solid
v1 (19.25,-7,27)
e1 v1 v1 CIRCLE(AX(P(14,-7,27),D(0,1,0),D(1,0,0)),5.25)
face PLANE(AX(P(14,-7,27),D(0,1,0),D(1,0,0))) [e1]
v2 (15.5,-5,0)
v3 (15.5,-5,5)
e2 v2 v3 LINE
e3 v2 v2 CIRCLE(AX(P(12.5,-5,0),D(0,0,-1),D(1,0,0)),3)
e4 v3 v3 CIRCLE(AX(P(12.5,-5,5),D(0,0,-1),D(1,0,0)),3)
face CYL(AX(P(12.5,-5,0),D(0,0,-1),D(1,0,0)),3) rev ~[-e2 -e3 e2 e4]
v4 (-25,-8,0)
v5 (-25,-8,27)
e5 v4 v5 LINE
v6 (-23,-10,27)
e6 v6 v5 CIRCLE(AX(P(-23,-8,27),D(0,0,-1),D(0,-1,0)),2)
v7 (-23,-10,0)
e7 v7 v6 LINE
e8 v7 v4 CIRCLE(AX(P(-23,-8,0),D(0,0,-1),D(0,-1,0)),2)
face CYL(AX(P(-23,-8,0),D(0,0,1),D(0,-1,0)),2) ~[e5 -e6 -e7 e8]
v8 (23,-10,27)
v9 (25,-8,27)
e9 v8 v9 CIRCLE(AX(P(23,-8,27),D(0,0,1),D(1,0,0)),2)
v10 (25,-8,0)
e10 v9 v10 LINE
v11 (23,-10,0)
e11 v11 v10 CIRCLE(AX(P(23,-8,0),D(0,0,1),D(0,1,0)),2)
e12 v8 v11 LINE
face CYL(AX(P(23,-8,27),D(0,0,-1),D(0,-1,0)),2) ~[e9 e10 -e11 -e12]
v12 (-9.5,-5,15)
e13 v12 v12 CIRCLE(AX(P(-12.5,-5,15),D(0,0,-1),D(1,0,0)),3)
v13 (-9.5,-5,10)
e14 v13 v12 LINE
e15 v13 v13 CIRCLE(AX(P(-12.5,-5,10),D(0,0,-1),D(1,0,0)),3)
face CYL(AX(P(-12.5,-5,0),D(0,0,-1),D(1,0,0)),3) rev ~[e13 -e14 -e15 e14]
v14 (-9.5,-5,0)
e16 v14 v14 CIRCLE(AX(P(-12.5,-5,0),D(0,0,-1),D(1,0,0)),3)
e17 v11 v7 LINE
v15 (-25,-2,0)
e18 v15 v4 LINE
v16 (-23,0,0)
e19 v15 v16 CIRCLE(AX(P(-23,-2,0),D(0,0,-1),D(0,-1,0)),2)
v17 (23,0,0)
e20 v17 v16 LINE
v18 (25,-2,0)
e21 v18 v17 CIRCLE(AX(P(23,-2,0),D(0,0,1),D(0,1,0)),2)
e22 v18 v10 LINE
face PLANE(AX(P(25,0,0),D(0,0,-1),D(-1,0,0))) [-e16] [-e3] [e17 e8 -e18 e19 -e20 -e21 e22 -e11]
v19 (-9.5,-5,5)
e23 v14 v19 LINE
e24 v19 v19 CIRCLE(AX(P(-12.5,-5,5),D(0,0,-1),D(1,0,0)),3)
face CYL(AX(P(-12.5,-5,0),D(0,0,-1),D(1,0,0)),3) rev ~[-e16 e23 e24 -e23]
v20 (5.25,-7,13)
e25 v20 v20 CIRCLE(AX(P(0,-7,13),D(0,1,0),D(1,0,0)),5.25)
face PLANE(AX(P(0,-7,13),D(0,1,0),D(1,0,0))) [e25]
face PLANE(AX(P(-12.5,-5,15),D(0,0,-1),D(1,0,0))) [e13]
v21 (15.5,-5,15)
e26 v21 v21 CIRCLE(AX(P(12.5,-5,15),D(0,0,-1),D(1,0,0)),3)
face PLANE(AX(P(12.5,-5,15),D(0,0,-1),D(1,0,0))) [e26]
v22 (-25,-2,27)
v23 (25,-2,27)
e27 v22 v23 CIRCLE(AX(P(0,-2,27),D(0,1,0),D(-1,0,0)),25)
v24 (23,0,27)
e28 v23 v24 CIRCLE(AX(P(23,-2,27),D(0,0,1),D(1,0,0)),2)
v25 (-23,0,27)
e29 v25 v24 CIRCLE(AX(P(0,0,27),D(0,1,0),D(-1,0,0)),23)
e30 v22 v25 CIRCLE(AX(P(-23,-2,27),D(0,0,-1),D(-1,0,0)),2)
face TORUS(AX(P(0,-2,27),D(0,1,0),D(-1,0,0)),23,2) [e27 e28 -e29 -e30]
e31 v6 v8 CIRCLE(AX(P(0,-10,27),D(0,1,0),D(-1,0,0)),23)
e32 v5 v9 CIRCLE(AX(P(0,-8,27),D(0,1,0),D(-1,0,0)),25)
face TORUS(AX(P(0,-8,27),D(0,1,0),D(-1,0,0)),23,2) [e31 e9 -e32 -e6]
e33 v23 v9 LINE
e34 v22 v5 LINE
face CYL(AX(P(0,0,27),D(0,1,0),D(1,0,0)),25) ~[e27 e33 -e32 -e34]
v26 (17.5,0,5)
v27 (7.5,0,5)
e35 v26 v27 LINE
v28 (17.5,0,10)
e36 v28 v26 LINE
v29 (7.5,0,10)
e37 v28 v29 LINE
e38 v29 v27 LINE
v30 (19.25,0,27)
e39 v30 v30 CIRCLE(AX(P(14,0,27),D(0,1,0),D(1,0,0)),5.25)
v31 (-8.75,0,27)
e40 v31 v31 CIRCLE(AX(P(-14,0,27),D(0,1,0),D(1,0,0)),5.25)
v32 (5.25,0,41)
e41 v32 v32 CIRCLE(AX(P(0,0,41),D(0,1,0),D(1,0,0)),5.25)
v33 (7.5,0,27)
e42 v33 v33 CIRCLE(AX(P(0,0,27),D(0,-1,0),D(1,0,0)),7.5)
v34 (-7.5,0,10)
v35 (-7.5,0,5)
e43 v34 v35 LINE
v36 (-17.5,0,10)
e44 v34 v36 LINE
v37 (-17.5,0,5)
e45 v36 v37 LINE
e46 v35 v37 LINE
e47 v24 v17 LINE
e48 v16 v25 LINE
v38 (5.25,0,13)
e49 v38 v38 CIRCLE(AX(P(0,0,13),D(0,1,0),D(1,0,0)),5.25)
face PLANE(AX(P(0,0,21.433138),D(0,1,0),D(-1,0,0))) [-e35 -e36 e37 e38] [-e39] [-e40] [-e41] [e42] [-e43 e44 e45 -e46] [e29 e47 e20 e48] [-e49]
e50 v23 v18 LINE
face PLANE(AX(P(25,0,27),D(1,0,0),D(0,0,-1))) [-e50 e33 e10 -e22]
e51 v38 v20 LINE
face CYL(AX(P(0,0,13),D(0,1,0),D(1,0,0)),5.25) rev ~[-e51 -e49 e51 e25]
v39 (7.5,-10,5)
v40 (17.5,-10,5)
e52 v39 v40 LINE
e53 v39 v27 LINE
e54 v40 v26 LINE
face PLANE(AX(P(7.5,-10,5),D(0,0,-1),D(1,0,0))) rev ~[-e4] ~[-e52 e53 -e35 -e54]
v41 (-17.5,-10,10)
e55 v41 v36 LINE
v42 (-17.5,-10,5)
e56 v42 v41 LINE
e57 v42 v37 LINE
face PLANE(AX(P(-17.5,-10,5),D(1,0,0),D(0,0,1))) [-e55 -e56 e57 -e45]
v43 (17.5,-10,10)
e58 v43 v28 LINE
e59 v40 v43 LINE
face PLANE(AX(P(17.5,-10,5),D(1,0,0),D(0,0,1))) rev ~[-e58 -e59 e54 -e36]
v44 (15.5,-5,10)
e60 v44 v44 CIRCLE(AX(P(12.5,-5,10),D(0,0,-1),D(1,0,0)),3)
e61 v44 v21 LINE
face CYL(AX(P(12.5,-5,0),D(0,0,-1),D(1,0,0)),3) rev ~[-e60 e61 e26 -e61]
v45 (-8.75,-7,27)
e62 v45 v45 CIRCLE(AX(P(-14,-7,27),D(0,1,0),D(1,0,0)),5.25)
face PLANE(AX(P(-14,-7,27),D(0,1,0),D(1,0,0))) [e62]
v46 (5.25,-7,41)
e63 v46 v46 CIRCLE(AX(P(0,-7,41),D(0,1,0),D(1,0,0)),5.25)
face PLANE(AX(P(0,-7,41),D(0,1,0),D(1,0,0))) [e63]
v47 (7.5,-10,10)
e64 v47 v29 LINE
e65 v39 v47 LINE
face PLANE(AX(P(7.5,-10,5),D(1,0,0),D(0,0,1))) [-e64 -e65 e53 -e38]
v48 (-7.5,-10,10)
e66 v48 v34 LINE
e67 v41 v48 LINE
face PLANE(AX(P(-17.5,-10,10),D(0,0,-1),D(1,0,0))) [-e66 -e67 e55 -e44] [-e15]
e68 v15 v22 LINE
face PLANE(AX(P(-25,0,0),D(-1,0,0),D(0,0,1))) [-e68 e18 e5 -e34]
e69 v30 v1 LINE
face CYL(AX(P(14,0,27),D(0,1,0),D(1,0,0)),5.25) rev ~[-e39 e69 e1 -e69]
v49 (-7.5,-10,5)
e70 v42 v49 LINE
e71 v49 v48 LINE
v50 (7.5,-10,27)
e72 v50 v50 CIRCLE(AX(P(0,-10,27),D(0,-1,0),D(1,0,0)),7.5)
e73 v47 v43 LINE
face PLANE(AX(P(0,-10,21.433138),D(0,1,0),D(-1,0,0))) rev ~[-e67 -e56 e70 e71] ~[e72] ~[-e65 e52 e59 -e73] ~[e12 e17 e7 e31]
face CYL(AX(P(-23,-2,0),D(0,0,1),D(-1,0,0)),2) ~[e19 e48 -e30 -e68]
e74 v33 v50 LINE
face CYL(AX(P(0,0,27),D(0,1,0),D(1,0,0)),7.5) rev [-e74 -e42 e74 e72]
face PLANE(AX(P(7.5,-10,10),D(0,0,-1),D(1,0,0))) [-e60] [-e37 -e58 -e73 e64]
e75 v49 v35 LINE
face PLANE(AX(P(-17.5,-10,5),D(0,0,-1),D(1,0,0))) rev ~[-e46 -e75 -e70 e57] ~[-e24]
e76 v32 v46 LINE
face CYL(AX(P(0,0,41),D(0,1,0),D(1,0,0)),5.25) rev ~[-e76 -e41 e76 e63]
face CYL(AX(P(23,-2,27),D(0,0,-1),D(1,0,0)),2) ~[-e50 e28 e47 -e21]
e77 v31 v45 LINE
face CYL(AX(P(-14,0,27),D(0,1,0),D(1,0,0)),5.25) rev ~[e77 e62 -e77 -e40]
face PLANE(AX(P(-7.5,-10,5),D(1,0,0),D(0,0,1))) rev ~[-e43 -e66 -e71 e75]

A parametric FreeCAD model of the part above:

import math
import FreeCAD as App
import Part
import Sketcher

V = App.Vector


def edges_at(feature, points):
    """Names of the edges that pass closest to the given points."""
    edges = feature.Shape.Edges
    near = lambda p: min(range(len(edges)), key=lambda i: edges[i].distToShape(Part.Vertex(*p))[0])
    return sorted({f"Edge{near(p) + 1}" for p in points})


def add_polygon(sketch, points):
    """Adds a closed chain of lines whose ends are joined by coincident constraints."""
    first, n = sketch.GeometryCount, len(points)
    for a, b in zip(points, points[1:] + points[:1]):
        sketch.addGeometry(Part.LineSegment(App.Vector(*a, 0), App.Vector(*b, 0)), False)
    for i in range(n):
        sketch.addConstraint(Sketcher.Constraint("Coincident", first + i, 2, first + (i + 1) % n, 1))

doc = App.newDocument("Part")
body = doc.addObject("PartDesign::Body", "Body")

sketch1 = body.newObject("Sketcher::SketchObject", "Sketch")
sketch1.AttachmentSupport = (doc.getObject("XZ_Plane"), [""])
sketch1.MapMode = "FlatFace"
sketch1.addGeometry([
    Part.LineSegment(V(-25, 27, 0), V(-25, 0, 0)),
    Part.LineSegment(V(-25, 0, 0), V(25, 0, 0)),
    Part.LineSegment(V(25, 0, 0), V(25, 27, 0)),
    Part.ArcOfCircle(Part.Circle(V(0, 27, 0), V(0, 0, 1), 25), math.radians(0), math.radians(180)),
    Part.Circle(V(0, 27, 0), V(0, 0, 1), 7.5),
], False)
sketch1.addConstraint([
    Sketcher.Constraint("Coincident", 0, 2, 1, 1),
    Sketcher.Constraint("Coincident", 1, 2, 2, 1),
    Sketcher.Constraint("Tangent", 2, 2, 3, 1),
    Sketcher.Constraint("Tangent", 3, 2, 0, 1),
    Sketcher.Constraint("Vertical", 0),
    Sketcher.Constraint("Horizontal", 1),
    Sketcher.Constraint("Vertical", 2),
    Sketcher.Constraint("Coincident", 4, 3, 3, 3),
    Sketcher.Constraint("Symmetric", 0, 2, 1, 2, -1, 1),
    Sketcher.Constraint("Diameter", 4, 15.0),
    Sketcher.Constraint("Radius", 3, 25.0),
    Sketcher.Constraint("DistanceY", 0, 2, 0, 1, 27.0),
])
pad1 = body.newObject("PartDesign::Pad", "Pad")
pad1.Profile = sketch1
pad1.Length = 10

sketch2 = body.newObject("Sketcher::SketchObject", "Sketch001")
sketch2.AttachmentSupport = (doc.getObject("XZ_Plane"), [""])
sketch2.MapMode = "FlatFace"
sketch2.AttachmentOffset = App.Placement(V(0, 0, 10), App.Rotation())
add_polygon(sketch2, [(-17.5, 10), (-17.5, 5), (-7.5, 5), (-7.5, 10)])
add_polygon(sketch2, [(7.5, 10), (7.5, 5), (17.5, 5), (17.5, 10)])
sketch2.addConstraint([
    Sketcher.Constraint("Vertical", 0),
    Sketcher.Constraint("Horizontal", 1),
    Sketcher.Constraint("Vertical", 2),
    Sketcher.Constraint("Horizontal", 3),
    Sketcher.Constraint("Vertical", 4),
    Sketcher.Constraint("Horizontal", 5),
    Sketcher.Constraint("Vertical", 6),
    Sketcher.Constraint("Horizontal", 7),
    Sketcher.Constraint("Symmetric", 1, 2, 4, 2, -2),
    Sketcher.Constraint("Symmetric", 3, 2, 6, 2, -2),
    Sketcher.Constraint("DistanceX", 1, 1, 1, 2, 10.0),
    Sketcher.Constraint("DistanceY", 0, 2, 0, 1, 5.0),
    Sketcher.Constraint("DistanceY", -1, 1, 0, 2, 5.0),
    Sketcher.Constraint("DistanceX", 1, 2, 4, 2, 15.0),
])
pocket1 = body.newObject("PartDesign::Pocket", "Pocket")
pocket1.Profile = sketch2
pocket1.Type = "ThroughAll"

sketch3 = body.newObject("Sketcher::SketchObject", "Sketch002")
sketch3.AttachmentSupport = (doc.getObject("XY_Plane"), [""])
sketch3.MapMode = "FlatFace"
sketch3.addGeometry([
    Part.Circle(V(-12.5, -5, 0), V(0, 0, 1), 3),
    Part.Circle(V(12.5, -5, 0), V(0, 0, 1), 3),
], False)
sketch3.addConstraint([
    Sketcher.Constraint("Equal", 0, 1),
    Sketcher.Constraint("Symmetric", 0, 3, 1, 3, -2),
    Sketcher.Constraint("Diameter", 0, 6.0),
    Sketcher.Constraint("DistanceY", 0, 3, -1, 1, 5.0),
    Sketcher.Constraint("DistanceX", 0, 3, 1, 3, 25.0),
])
pocket2 = body.newObject("PartDesign::Pocket", "Pocket001")
pocket2.Profile = sketch3
pocket2.Length = 15
pocket2.Reversed = True

sketch4 = body.newObject("Sketcher::SketchObject", "Sketch003")
sketch4.AttachmentSupport = (doc.getObject("XZ_Plane"), [""])
sketch4.MapMode = "FlatFace"
sketch4.addGeometry([
    Part.Circle(V(14, 27, 0), V(0, 0, 1), 5.25),
    Part.Circle(V(0, 13, 0), V(0, 0, 1), 5.25),
    Part.Circle(V(0, 41, 0), V(0, 0, 1), 5.25),
    Part.Circle(V(-14, 27, 0), V(0, 0, 1), 5.25),
], False)
sketch4.addConstraint([
    Sketcher.Constraint("Equal", 0, 1),
    Sketcher.Constraint("Equal", 1, 2),
    Sketcher.Constraint("Equal", 2, 3),
    Sketcher.Constraint("Symmetric", 0, 3, 3, 3, -2),
    Sketcher.Constraint("PointOnObject", 1, 3, -2),
    Sketcher.Constraint("PointOnObject", 2, 3, -2),
    Sketcher.Constraint("Diameter", 0, 10.5),
    Sketcher.Constraint("DistanceX", -1, 1, 0, 3, 14.0),
    Sketcher.Constraint("DistanceY", -1, 1, 0, 3, 27.0),
    Sketcher.Constraint("DistanceY", -1, 1, 1, 3, 13.0),
    Sketcher.Constraint("DistanceY", -1, 1, 2, 3, 41.0),
])
pocket3 = body.newObject("PartDesign::Pocket", "Pocket002")
pocket3.Profile = sketch4
pocket3.Length = 7
pocket3.Reversed = True
doc.recompute()

fillet = body.newObject("PartDesign::Fillet", "Fillet")
fillet.Base = (pocket3, edges_at(pocket3, [(-25, 0, 13.5)]))
fillet.Radius = 2
doc.recompute()

fillet2 = body.newObject("PartDesign::Fillet", "Fillet001")
fillet2.Base = (fillet, edges_at(fillet, [(25, -10, 13.5)]))
fillet2.Radius = 2

doc.recompute()
